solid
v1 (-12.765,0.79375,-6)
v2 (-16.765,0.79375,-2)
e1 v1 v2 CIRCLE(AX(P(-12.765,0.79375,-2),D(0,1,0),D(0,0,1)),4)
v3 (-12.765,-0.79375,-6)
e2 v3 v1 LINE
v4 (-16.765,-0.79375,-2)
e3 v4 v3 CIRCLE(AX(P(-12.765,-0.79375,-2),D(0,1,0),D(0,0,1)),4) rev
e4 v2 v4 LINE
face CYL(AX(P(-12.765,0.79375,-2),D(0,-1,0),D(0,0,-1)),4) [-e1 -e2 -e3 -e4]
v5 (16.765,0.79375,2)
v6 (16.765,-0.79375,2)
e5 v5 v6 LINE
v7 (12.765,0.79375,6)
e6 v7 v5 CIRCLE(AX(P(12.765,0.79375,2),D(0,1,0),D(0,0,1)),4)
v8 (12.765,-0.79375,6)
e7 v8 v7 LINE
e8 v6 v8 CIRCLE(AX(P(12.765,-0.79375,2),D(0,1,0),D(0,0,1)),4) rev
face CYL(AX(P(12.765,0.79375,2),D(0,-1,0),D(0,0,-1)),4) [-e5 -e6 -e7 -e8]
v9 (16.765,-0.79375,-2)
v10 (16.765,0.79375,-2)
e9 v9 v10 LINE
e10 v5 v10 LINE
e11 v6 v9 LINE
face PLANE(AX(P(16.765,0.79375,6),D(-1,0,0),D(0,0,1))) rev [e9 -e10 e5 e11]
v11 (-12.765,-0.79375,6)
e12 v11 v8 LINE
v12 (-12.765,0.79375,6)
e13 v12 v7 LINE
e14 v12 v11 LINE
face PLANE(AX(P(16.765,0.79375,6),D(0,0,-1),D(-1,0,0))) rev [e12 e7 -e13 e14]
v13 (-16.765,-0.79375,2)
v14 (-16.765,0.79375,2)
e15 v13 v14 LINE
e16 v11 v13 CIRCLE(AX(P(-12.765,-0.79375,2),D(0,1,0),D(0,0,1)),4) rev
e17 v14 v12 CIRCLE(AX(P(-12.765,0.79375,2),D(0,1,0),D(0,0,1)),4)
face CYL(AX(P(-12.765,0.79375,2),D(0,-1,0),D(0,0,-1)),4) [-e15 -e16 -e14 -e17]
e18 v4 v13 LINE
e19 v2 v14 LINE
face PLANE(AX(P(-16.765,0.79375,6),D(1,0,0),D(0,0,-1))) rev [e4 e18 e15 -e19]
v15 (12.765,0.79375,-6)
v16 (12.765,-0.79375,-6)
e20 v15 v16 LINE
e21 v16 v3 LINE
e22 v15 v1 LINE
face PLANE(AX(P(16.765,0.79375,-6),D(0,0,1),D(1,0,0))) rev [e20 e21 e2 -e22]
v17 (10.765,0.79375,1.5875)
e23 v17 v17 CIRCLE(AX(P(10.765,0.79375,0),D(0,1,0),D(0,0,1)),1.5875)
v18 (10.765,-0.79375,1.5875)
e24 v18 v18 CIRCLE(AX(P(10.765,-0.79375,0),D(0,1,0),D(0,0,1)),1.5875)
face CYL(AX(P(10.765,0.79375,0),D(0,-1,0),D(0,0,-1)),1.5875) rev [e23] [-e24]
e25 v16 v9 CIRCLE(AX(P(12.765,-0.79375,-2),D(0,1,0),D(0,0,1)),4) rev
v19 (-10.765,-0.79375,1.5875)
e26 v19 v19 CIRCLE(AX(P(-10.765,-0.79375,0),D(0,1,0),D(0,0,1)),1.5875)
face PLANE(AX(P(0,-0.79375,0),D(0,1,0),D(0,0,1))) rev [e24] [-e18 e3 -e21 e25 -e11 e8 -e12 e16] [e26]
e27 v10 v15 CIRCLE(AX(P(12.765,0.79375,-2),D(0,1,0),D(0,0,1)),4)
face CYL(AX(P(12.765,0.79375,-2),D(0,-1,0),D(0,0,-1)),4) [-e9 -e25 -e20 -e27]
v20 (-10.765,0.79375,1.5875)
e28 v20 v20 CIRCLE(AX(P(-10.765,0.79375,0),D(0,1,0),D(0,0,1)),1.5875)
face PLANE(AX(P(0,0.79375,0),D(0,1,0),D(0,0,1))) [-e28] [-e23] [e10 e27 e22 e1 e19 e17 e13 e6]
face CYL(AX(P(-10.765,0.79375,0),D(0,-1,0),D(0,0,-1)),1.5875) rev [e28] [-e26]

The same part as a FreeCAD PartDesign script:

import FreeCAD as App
import Part
import Sketcher

V = App.Vector


def edges_at(feature, points):
    """Names of the edges that pass closest to the given points."""
    edges = feature.Shape.Edges
    near = lambda p: min(range(len(edges)), key=lambda i: edges[i].distToShape(Part.Vertex(*p))[0])
    return sorted({f"Edge{near(p) + 1}" for p in points})


def add_polygon(sketch, points):
    """Adds a closed chain of lines whose ends are joined by coincident constraints."""
    first, n = sketch.GeometryCount, len(points)
    for a, b in zip(points, points[1:] + points[:1]):
        sketch.addGeometry(Part.LineSegment(App.Vector(*a, 0), App.Vector(*b, 0)), False)
    for i in range(n):
        sketch.addConstraint(Sketcher.Constraint("Coincident", first + i, 2, first + (i + 1) % n, 1))

doc = App.newDocument("Part")
params = doc.addObject("Spreadsheet::Sheet", "Params")
for row, (alias, value) in enumerate([
    ("sketch1_height", "12 mm"),
    ("sketch1_width", "33.53 mm"),
    ("pad1_length", "1.5875 mm"),
    ("fillet_radius", "4 mm"),
], start=1):
    params.set(f"A{row}", alias)
    params.set(f"B{row}", "=" + value)
    params.setAlias(f"B{row}", alias)

body = doc.addObject("PartDesign::Body", "Body")

sketch1 = doc.addObject("Sketcher::SketchObject", "Sketch")
body.addObject(sketch1)
sketch1.AttachmentSupport = (doc.XZ_Plane, [""])
sketch1.MapMode = "FlatFace"
add_polygon(sketch1, [(-16.765, -6), (-16.765, 6), (16.765, 6), (16.765, -6)])
sketch1.addGeometry(Part.Circle(V(-10.765, 0, 0), V(0, 0, 1), 1.5875), False)
sketch1.addGeometry(Part.Circle(V(10.765, 0, 0), V(0, 0, 1), 1.5875), False)
sketch1.addConstraint([
    Sketcher.Constraint("Vertical", 0),
    Sketcher.Constraint("Horizontal", 1),
    Sketcher.Constraint("Vertical", 2),
    Sketcher.Constraint("Horizontal", 3),
    Sketcher.Constraint("Equal", 4, 5),
    Sketcher.Constraint("Symmetric", 4, 3, 5, 3, -1, 1),
    Sketcher.Constraint("Symmetric", 0, 2, 2, 2, -1, 1),
    Sketcher.Constraint("PointOnObject", 4, 3, -1),
    Sketcher.Constraint("DistanceY", 0, 1, 0, 2, 12.0),
    Sketcher.Constraint("Diameter", 4, 3.175),
    Sketcher.Constraint("DistanceX", 0, 2, 4, 3, 6.0),
    Sketcher.Constraint("DistanceX", 1, 1, 1, 2, 33.53),
])
sketch1.setExpression("Constraints[12]", "Params.sketch1_height")
sketch1.setExpression("Constraints[15]", "Params.sketch1_width")
pad1 = doc.addObject("PartDesign::Pad", "Pad")
body.addObject(pad1)
pad1.Profile = sketch1
pad1.setExpression("Length", "Params.pad1_length")
pad1.Midplane = True
doc.recompute()

fillet = doc.addObject("PartDesign::Fillet", "Fillet")
body.addObject(fillet)
fillet.Base = (pad1, edges_at(pad1, [
    (-16.765, 0, -6),
    (16.765, 0, -6),
    (16.765, 0, 6),
    (-16.765, 0, 6),
]))
fillet.setExpression("Radius", "Params.fillet_radius")

doc.recompute()
